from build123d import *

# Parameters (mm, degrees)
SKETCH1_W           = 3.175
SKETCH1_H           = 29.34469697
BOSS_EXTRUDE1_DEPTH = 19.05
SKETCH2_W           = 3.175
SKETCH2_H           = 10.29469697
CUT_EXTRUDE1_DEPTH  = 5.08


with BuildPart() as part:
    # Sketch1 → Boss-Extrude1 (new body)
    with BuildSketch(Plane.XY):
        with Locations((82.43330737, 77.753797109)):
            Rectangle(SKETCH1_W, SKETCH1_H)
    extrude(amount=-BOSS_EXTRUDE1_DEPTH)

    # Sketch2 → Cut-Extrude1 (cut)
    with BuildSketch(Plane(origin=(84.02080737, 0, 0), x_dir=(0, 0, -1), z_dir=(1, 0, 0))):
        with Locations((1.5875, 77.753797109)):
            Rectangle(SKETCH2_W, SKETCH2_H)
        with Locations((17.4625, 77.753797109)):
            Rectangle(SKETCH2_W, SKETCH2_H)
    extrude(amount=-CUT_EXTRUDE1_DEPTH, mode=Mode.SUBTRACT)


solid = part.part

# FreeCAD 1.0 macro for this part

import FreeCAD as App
import Part
import Sketcher
Q = App.Units.Quantity

doc = App.newDocument("Part")
body = doc.addObject("PartDesign::Body", "Body")

# Sketch on XY plane
sketch1 = body.newObject("Sketcher::SketchObject", "Sketch")
sketch1.AttachmentSupport = (doc.getObject("XY_Plane"), [""])
sketch1.MapMode = "FlatFace"
sketch1.addGeometry([
    Part.LineSegment(App.Vector(80.8, 92.4, 0), App.Vector(80.8, 63.1, 0)),
    Part.LineSegment(App.Vector(80.8, 63.1, 0), App.Vector(84, 63.1, 0)),
    Part.LineSegment(App.Vector(84, 63.1, 0), App.Vector(84, 92.4, 0)),
    Part.LineSegment(App.Vector(84, 92.4, 0), App.Vector(80.8, 92.4, 0)),
], False)
sketch1.addConstraint([
    Sketcher.Constraint("Coincident", 0, 2, 1, 1),
    Sketcher.Constraint("Coincident", 1, 2, 2, 1),
    Sketcher.Constraint("Coincident", 2, 2, 3, 1),
    Sketcher.Constraint("Coincident", 3, 2, 0, 1),
    Sketcher.Constraint("Vertical", 0),
    Sketcher.Constraint("Horizontal", 1),
    Sketcher.Constraint("Vertical", 2),
    Sketcher.Constraint("Horizontal", 3),
    Sketcher.Constraint("DistanceX", 1, 1, 1, 2, Q("0.125 in")),
    Sketcher.Constraint("DistanceY", 0, 2, 0, 1, Q("29.344697 mm")),
    Sketcher.Constraint("DistanceY", -1, 1, 0, 2, Q("63.081449 mm")),
    Sketcher.Constraint("DistanceX", -1, 1, 0, 2, Q("80.845807 mm")),
])
pad1 = body.newObject("PartDesign::Pad", "Pad")
pad1.Profile = sketch1
pad1.Length = Q("0.75 in")
pad1.Reversed = True

# Sketch on YZ plane
sketch2 = body.newObject("Sketcher::SketchObject", "Sketch001")
sketch2.AttachmentSupport = (doc.getObject("YZ_Plane"), [""])
sketch2.MapMode = "FlatFace"
sketch2.AttachmentOffset = App.Placement(App.Vector(0, 0, 84.020807), App.Rotation())
sketch2.addGeometry([
    Part.LineSegment(App.Vector(82.9, 0, 0), App.Vector(72.6, 0, 0)),  # 0
    Part.LineSegment(App.Vector(72.6, 0, 0), App.Vector(72.6, -3.2, 0)),  # 1
    Part.LineSegment(App.Vector(72.6, -3.2, 0), App.Vector(82.9, -3.2, 0)),  # 2
    Part.LineSegment(App.Vector(82.9, -3.2, 0), App.Vector(82.9, 0, 0)),  # 3
    Part.LineSegment(App.Vector(82.9, -15.9, 0), App.Vector(72.6, -15.9, 0)),  # 4
    Part.LineSegment(App.Vector(72.6, -15.9, 0), App.Vector(72.6, -19.1, 0)),  # 5
    Part.LineSegment(App.Vector(72.6, -19.1, 0), App.Vector(82.9, -19.1, 0)),  # 6
    Part.LineSegment(App.Vector(82.9, -19.1, 0), App.Vector(82.9, -15.9, 0)),  # 7
], False)
sketch2.addConstraint([
    Sketcher.Constraint("Coincident", 0, 2, 1, 1),
    Sketcher.Constraint("Coincident", 1, 2, 2, 1),
    Sketcher.Constraint("Coincident", 2, 2, 3, 1),
    Sketcher.Constraint("Coincident", 3, 2, 0, 1),
    Sketcher.Constraint("Coincident", 4, 2, 5, 1),
    Sketcher.Constraint("Coincident", 5, 2, 6, 1),
    Sketcher.Constraint("Coincident", 6, 2, 7, 1),
    Sketcher.Constraint("Coincident", 7, 2, 4, 1),
    Sketcher.Constraint("Horizontal", 0),
    Sketcher.Constraint("Vertical", 1),
    Sketcher.Constraint("Horizontal", 2),
    Sketcher.Constraint("Vertical", 3),
    Sketcher.Constraint("Horizontal", 4),
    Sketcher.Constraint("Vertical", 5),
    Sketcher.Constraint("Horizontal", 6),
    Sketcher.Constraint("Vertical", 7),
    Sketcher.Constraint("PointOnObject", 0, 2, -1),
    Sketcher.Constraint("Vertical", 1, 2, 4, 2),
    Sketcher.Constraint("Vertical", 3, 2, 6, 2),
    Sketcher.Constraint("Equal", 3, 5),
    Sketcher.Constraint("DistanceY", 4, 2, 1, 2, Q("0.5 in")),
    Sketcher.Constraint("DistanceY", 1, 2, 1, 1, Q("0.125 in")),
    Sketcher.Constraint("DistanceX", 0, 2, 0, 1, Q("10.294697 mm")),
    Sketcher.Constraint("DistanceX", -1, 1, 0, 2, Q("72.606449 mm")),
])
pocket1 = body.newObject("PartDesign::Pocket", "Pocket")
pocket1.Profile = sketch2
pocket1.Length = Q("0.2 in")

doc.recompute()
